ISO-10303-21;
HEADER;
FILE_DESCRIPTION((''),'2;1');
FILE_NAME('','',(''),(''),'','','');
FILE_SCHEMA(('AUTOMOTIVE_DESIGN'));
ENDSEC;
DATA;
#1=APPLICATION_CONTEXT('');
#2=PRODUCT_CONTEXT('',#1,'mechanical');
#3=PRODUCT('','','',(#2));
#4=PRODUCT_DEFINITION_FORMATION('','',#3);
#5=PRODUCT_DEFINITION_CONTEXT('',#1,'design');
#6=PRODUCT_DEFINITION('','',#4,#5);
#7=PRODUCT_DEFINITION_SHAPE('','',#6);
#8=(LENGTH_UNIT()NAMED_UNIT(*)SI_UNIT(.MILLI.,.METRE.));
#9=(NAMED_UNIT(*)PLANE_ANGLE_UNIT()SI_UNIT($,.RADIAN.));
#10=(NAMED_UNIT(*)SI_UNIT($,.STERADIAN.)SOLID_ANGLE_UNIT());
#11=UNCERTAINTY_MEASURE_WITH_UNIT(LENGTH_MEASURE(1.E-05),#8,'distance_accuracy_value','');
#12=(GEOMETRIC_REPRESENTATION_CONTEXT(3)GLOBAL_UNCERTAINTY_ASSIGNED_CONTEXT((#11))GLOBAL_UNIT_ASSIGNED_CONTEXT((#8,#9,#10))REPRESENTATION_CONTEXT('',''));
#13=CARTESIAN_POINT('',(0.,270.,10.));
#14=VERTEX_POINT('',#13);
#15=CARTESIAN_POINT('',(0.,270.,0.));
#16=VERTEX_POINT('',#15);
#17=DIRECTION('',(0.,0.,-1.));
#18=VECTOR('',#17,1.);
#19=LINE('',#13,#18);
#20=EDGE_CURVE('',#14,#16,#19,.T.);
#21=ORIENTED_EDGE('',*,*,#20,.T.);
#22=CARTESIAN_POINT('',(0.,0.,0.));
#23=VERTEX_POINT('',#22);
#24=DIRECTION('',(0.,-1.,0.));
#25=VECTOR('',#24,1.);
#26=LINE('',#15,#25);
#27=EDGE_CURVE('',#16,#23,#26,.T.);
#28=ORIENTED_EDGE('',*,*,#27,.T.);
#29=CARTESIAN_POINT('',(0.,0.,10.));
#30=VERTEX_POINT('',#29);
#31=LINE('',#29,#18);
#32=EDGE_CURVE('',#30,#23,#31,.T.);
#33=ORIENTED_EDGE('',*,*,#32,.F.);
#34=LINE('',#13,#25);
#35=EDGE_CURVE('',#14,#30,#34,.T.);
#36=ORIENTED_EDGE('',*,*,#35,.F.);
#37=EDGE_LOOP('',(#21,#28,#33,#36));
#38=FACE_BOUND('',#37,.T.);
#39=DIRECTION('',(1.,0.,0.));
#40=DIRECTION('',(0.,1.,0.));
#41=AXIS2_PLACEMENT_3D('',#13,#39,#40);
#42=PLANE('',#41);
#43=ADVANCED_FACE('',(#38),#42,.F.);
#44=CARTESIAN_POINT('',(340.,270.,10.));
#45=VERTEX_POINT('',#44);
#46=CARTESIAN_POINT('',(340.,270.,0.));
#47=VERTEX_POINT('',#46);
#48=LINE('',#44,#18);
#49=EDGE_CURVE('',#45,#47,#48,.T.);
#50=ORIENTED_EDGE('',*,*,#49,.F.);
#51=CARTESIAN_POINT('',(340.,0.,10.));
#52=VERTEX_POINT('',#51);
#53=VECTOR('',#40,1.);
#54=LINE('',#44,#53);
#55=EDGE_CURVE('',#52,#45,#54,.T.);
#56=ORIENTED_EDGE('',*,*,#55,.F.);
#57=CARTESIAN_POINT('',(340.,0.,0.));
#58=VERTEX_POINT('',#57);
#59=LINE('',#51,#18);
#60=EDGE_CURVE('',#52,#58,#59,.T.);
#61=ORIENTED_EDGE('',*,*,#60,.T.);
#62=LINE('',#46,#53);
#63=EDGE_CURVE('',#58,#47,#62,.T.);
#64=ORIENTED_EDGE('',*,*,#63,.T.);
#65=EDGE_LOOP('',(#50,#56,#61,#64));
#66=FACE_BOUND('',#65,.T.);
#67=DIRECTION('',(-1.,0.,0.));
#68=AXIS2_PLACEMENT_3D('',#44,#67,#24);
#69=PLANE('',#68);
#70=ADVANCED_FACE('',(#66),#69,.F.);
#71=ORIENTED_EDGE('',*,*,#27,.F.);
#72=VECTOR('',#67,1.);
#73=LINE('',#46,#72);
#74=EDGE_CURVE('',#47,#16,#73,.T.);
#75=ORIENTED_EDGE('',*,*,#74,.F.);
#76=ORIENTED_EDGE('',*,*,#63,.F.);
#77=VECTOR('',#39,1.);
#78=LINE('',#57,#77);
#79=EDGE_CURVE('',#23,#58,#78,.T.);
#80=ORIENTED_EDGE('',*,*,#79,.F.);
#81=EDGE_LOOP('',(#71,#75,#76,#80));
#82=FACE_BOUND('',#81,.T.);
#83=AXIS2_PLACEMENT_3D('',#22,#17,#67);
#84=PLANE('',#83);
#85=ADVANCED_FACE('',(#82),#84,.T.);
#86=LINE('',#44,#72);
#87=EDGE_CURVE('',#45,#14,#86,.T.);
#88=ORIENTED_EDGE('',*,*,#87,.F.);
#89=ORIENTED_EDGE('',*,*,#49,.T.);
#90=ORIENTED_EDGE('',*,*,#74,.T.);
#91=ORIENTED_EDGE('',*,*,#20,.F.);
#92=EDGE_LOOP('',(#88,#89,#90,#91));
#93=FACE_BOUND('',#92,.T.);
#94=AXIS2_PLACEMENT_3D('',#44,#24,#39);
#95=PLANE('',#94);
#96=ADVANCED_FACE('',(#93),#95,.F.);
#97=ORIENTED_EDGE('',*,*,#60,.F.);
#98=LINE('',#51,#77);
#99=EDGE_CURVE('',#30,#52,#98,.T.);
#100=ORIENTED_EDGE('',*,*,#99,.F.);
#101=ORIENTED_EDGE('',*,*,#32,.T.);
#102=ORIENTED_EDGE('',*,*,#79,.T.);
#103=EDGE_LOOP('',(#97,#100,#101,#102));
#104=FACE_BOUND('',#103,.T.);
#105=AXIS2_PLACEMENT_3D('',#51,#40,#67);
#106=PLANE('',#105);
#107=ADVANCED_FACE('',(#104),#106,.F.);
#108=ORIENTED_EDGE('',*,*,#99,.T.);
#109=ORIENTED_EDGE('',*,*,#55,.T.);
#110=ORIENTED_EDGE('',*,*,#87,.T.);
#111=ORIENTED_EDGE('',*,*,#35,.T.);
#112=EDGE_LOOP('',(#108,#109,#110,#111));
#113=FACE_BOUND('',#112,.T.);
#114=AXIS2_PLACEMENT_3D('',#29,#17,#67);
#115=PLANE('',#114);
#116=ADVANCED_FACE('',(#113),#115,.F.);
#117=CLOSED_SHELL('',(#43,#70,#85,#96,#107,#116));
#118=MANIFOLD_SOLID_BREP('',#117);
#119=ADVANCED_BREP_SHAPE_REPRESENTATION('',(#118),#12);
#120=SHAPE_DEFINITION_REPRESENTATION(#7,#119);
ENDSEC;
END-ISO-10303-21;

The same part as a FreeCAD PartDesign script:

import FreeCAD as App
import Part
import Sketcher
Q = App.Units.Quantity

doc = App.newDocument("Part")
body = doc.addObject("PartDesign::Body", "Body")

# Sketch on XY plane
sketch1 = body.newObject("Sketcher::SketchObject", "Sketch")
sketch1.AttachmentSupport = (doc.getObject("XY_Plane"), [""])
sketch1.MapMode = "FlatFace"
sketch1.addGeometry(Part.LineSegment(App.Vector(0, 270, 0), App.Vector(0, 0, 0)), False)
sketch1.addGeometry(Part.LineSegment(App.Vector(0, 0, 0), App.Vector(340, 0, 0)), False)
sketch1.addGeometry(Part.LineSegment(App.Vector(340, 0, 0), App.Vector(340, 270, 0)), False)
sketch1.addGeometry(Part.LineSegment(App.Vector(340, 270, 0), App.Vector(0, 270, 0)), False)
sketch1.addConstraint(Sketcher.Constraint("Coincident", 0, 2, 1, 1))
sketch1.addConstraint(Sketcher.Constraint("Coincident", 1, 2, 2, 1))
sketch1.addConstraint(Sketcher.Constraint("Coincident", 2, 2, 3, 1))
sketch1.addConstraint(Sketcher.Constraint("Coincident", 3, 2, 0, 1))
sketch1.addConstraint(Sketcher.Constraint("Vertical", 0))
sketch1.addConstraint(Sketcher.Constraint("Horizontal", 1))
sketch1.addConstraint(Sketcher.Constraint("Vertical", 2))
sketch1.addConstraint(Sketcher.Constraint("Horizontal", 3))
sketch1.addConstraint(Sketcher.Constraint("Coincident", 0, 2, -1, 1))
sketch1.addConstraint(Sketcher.Constraint("DistanceX", 1, 1, 1, 2, Q("340 mm")))
sketch1.addConstraint(Sketcher.Constraint("DistanceY", 0, 2, 0, 1, Q("270 mm")))
pad1 = body.newObject("PartDesign::Pad", "Pad")
pad1.Profile = sketch1
pad1.Length = 10

doc.recompute()
